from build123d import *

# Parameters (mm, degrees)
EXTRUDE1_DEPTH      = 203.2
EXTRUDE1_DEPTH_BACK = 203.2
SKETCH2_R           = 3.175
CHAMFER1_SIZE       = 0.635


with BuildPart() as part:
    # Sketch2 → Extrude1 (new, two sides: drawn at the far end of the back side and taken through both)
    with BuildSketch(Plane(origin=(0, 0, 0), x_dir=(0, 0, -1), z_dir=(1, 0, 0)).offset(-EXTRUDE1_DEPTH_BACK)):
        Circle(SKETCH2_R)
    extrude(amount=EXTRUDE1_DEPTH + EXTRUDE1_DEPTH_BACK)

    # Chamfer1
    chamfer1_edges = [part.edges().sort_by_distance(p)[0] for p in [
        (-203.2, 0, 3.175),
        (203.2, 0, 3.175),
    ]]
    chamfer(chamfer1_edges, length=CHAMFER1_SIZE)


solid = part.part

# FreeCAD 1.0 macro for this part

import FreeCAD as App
import Part
import Sketcher
from FreeCAD import Vector
Q = App.Units.Quantity


def edges_at(feature, points):
    """Names of the edges that pass closest to the given points."""
    edges = feature.Shape.Edges
    near = lambda p: min(range(len(edges)), key=lambda i: edges[i].distToShape(Part.Vertex(*p))[0])
    return sorted({f"Edge{near(p) + 1}" for p in points})

doc = App.newDocument("Part")
body = doc.addObject("PartDesign::Body", "Body")

# Sketch on YZ plane
sketch1 = doc.addObject("Sketcher::SketchObject", "Sketch")
body.addObject(sketch1)
sketch1.AttachmentSupport = (doc.YZ_Plane, [""])
sketch1.MapMode = "FlatFace"
sketch1.addGeometry(Part.Circle(Vector(0, 0, 0), Vector(0, 0, 1), 3.2), False)
sketch1.addConstraint([
    Sketcher.Constraint("Coincident", 0, 3, -1, 1),
    Sketcher.Constraint("Diameter", 0, Q("0.25 in")),
])
pad1 = doc.addObject("PartDesign::Pad", "Pad")
body.addObject(pad1)
pad1.Profile = sketch1
pad1.Type = "TwoLengths"
pad1.Length = Q("8 in")
pad1.Length2 = Q("8 in")
doc.recompute()

chamfer = doc.addObject("PartDesign::Chamfer", "Chamfer")
body.addObject(chamfer)
chamfer.Base = (pad1, edges_at(pad1, [(-203.2, 0, 3.175), (203.2, 0, 3.175)]))
chamfer.Size = Q("0.025 in")

doc.recompute()
